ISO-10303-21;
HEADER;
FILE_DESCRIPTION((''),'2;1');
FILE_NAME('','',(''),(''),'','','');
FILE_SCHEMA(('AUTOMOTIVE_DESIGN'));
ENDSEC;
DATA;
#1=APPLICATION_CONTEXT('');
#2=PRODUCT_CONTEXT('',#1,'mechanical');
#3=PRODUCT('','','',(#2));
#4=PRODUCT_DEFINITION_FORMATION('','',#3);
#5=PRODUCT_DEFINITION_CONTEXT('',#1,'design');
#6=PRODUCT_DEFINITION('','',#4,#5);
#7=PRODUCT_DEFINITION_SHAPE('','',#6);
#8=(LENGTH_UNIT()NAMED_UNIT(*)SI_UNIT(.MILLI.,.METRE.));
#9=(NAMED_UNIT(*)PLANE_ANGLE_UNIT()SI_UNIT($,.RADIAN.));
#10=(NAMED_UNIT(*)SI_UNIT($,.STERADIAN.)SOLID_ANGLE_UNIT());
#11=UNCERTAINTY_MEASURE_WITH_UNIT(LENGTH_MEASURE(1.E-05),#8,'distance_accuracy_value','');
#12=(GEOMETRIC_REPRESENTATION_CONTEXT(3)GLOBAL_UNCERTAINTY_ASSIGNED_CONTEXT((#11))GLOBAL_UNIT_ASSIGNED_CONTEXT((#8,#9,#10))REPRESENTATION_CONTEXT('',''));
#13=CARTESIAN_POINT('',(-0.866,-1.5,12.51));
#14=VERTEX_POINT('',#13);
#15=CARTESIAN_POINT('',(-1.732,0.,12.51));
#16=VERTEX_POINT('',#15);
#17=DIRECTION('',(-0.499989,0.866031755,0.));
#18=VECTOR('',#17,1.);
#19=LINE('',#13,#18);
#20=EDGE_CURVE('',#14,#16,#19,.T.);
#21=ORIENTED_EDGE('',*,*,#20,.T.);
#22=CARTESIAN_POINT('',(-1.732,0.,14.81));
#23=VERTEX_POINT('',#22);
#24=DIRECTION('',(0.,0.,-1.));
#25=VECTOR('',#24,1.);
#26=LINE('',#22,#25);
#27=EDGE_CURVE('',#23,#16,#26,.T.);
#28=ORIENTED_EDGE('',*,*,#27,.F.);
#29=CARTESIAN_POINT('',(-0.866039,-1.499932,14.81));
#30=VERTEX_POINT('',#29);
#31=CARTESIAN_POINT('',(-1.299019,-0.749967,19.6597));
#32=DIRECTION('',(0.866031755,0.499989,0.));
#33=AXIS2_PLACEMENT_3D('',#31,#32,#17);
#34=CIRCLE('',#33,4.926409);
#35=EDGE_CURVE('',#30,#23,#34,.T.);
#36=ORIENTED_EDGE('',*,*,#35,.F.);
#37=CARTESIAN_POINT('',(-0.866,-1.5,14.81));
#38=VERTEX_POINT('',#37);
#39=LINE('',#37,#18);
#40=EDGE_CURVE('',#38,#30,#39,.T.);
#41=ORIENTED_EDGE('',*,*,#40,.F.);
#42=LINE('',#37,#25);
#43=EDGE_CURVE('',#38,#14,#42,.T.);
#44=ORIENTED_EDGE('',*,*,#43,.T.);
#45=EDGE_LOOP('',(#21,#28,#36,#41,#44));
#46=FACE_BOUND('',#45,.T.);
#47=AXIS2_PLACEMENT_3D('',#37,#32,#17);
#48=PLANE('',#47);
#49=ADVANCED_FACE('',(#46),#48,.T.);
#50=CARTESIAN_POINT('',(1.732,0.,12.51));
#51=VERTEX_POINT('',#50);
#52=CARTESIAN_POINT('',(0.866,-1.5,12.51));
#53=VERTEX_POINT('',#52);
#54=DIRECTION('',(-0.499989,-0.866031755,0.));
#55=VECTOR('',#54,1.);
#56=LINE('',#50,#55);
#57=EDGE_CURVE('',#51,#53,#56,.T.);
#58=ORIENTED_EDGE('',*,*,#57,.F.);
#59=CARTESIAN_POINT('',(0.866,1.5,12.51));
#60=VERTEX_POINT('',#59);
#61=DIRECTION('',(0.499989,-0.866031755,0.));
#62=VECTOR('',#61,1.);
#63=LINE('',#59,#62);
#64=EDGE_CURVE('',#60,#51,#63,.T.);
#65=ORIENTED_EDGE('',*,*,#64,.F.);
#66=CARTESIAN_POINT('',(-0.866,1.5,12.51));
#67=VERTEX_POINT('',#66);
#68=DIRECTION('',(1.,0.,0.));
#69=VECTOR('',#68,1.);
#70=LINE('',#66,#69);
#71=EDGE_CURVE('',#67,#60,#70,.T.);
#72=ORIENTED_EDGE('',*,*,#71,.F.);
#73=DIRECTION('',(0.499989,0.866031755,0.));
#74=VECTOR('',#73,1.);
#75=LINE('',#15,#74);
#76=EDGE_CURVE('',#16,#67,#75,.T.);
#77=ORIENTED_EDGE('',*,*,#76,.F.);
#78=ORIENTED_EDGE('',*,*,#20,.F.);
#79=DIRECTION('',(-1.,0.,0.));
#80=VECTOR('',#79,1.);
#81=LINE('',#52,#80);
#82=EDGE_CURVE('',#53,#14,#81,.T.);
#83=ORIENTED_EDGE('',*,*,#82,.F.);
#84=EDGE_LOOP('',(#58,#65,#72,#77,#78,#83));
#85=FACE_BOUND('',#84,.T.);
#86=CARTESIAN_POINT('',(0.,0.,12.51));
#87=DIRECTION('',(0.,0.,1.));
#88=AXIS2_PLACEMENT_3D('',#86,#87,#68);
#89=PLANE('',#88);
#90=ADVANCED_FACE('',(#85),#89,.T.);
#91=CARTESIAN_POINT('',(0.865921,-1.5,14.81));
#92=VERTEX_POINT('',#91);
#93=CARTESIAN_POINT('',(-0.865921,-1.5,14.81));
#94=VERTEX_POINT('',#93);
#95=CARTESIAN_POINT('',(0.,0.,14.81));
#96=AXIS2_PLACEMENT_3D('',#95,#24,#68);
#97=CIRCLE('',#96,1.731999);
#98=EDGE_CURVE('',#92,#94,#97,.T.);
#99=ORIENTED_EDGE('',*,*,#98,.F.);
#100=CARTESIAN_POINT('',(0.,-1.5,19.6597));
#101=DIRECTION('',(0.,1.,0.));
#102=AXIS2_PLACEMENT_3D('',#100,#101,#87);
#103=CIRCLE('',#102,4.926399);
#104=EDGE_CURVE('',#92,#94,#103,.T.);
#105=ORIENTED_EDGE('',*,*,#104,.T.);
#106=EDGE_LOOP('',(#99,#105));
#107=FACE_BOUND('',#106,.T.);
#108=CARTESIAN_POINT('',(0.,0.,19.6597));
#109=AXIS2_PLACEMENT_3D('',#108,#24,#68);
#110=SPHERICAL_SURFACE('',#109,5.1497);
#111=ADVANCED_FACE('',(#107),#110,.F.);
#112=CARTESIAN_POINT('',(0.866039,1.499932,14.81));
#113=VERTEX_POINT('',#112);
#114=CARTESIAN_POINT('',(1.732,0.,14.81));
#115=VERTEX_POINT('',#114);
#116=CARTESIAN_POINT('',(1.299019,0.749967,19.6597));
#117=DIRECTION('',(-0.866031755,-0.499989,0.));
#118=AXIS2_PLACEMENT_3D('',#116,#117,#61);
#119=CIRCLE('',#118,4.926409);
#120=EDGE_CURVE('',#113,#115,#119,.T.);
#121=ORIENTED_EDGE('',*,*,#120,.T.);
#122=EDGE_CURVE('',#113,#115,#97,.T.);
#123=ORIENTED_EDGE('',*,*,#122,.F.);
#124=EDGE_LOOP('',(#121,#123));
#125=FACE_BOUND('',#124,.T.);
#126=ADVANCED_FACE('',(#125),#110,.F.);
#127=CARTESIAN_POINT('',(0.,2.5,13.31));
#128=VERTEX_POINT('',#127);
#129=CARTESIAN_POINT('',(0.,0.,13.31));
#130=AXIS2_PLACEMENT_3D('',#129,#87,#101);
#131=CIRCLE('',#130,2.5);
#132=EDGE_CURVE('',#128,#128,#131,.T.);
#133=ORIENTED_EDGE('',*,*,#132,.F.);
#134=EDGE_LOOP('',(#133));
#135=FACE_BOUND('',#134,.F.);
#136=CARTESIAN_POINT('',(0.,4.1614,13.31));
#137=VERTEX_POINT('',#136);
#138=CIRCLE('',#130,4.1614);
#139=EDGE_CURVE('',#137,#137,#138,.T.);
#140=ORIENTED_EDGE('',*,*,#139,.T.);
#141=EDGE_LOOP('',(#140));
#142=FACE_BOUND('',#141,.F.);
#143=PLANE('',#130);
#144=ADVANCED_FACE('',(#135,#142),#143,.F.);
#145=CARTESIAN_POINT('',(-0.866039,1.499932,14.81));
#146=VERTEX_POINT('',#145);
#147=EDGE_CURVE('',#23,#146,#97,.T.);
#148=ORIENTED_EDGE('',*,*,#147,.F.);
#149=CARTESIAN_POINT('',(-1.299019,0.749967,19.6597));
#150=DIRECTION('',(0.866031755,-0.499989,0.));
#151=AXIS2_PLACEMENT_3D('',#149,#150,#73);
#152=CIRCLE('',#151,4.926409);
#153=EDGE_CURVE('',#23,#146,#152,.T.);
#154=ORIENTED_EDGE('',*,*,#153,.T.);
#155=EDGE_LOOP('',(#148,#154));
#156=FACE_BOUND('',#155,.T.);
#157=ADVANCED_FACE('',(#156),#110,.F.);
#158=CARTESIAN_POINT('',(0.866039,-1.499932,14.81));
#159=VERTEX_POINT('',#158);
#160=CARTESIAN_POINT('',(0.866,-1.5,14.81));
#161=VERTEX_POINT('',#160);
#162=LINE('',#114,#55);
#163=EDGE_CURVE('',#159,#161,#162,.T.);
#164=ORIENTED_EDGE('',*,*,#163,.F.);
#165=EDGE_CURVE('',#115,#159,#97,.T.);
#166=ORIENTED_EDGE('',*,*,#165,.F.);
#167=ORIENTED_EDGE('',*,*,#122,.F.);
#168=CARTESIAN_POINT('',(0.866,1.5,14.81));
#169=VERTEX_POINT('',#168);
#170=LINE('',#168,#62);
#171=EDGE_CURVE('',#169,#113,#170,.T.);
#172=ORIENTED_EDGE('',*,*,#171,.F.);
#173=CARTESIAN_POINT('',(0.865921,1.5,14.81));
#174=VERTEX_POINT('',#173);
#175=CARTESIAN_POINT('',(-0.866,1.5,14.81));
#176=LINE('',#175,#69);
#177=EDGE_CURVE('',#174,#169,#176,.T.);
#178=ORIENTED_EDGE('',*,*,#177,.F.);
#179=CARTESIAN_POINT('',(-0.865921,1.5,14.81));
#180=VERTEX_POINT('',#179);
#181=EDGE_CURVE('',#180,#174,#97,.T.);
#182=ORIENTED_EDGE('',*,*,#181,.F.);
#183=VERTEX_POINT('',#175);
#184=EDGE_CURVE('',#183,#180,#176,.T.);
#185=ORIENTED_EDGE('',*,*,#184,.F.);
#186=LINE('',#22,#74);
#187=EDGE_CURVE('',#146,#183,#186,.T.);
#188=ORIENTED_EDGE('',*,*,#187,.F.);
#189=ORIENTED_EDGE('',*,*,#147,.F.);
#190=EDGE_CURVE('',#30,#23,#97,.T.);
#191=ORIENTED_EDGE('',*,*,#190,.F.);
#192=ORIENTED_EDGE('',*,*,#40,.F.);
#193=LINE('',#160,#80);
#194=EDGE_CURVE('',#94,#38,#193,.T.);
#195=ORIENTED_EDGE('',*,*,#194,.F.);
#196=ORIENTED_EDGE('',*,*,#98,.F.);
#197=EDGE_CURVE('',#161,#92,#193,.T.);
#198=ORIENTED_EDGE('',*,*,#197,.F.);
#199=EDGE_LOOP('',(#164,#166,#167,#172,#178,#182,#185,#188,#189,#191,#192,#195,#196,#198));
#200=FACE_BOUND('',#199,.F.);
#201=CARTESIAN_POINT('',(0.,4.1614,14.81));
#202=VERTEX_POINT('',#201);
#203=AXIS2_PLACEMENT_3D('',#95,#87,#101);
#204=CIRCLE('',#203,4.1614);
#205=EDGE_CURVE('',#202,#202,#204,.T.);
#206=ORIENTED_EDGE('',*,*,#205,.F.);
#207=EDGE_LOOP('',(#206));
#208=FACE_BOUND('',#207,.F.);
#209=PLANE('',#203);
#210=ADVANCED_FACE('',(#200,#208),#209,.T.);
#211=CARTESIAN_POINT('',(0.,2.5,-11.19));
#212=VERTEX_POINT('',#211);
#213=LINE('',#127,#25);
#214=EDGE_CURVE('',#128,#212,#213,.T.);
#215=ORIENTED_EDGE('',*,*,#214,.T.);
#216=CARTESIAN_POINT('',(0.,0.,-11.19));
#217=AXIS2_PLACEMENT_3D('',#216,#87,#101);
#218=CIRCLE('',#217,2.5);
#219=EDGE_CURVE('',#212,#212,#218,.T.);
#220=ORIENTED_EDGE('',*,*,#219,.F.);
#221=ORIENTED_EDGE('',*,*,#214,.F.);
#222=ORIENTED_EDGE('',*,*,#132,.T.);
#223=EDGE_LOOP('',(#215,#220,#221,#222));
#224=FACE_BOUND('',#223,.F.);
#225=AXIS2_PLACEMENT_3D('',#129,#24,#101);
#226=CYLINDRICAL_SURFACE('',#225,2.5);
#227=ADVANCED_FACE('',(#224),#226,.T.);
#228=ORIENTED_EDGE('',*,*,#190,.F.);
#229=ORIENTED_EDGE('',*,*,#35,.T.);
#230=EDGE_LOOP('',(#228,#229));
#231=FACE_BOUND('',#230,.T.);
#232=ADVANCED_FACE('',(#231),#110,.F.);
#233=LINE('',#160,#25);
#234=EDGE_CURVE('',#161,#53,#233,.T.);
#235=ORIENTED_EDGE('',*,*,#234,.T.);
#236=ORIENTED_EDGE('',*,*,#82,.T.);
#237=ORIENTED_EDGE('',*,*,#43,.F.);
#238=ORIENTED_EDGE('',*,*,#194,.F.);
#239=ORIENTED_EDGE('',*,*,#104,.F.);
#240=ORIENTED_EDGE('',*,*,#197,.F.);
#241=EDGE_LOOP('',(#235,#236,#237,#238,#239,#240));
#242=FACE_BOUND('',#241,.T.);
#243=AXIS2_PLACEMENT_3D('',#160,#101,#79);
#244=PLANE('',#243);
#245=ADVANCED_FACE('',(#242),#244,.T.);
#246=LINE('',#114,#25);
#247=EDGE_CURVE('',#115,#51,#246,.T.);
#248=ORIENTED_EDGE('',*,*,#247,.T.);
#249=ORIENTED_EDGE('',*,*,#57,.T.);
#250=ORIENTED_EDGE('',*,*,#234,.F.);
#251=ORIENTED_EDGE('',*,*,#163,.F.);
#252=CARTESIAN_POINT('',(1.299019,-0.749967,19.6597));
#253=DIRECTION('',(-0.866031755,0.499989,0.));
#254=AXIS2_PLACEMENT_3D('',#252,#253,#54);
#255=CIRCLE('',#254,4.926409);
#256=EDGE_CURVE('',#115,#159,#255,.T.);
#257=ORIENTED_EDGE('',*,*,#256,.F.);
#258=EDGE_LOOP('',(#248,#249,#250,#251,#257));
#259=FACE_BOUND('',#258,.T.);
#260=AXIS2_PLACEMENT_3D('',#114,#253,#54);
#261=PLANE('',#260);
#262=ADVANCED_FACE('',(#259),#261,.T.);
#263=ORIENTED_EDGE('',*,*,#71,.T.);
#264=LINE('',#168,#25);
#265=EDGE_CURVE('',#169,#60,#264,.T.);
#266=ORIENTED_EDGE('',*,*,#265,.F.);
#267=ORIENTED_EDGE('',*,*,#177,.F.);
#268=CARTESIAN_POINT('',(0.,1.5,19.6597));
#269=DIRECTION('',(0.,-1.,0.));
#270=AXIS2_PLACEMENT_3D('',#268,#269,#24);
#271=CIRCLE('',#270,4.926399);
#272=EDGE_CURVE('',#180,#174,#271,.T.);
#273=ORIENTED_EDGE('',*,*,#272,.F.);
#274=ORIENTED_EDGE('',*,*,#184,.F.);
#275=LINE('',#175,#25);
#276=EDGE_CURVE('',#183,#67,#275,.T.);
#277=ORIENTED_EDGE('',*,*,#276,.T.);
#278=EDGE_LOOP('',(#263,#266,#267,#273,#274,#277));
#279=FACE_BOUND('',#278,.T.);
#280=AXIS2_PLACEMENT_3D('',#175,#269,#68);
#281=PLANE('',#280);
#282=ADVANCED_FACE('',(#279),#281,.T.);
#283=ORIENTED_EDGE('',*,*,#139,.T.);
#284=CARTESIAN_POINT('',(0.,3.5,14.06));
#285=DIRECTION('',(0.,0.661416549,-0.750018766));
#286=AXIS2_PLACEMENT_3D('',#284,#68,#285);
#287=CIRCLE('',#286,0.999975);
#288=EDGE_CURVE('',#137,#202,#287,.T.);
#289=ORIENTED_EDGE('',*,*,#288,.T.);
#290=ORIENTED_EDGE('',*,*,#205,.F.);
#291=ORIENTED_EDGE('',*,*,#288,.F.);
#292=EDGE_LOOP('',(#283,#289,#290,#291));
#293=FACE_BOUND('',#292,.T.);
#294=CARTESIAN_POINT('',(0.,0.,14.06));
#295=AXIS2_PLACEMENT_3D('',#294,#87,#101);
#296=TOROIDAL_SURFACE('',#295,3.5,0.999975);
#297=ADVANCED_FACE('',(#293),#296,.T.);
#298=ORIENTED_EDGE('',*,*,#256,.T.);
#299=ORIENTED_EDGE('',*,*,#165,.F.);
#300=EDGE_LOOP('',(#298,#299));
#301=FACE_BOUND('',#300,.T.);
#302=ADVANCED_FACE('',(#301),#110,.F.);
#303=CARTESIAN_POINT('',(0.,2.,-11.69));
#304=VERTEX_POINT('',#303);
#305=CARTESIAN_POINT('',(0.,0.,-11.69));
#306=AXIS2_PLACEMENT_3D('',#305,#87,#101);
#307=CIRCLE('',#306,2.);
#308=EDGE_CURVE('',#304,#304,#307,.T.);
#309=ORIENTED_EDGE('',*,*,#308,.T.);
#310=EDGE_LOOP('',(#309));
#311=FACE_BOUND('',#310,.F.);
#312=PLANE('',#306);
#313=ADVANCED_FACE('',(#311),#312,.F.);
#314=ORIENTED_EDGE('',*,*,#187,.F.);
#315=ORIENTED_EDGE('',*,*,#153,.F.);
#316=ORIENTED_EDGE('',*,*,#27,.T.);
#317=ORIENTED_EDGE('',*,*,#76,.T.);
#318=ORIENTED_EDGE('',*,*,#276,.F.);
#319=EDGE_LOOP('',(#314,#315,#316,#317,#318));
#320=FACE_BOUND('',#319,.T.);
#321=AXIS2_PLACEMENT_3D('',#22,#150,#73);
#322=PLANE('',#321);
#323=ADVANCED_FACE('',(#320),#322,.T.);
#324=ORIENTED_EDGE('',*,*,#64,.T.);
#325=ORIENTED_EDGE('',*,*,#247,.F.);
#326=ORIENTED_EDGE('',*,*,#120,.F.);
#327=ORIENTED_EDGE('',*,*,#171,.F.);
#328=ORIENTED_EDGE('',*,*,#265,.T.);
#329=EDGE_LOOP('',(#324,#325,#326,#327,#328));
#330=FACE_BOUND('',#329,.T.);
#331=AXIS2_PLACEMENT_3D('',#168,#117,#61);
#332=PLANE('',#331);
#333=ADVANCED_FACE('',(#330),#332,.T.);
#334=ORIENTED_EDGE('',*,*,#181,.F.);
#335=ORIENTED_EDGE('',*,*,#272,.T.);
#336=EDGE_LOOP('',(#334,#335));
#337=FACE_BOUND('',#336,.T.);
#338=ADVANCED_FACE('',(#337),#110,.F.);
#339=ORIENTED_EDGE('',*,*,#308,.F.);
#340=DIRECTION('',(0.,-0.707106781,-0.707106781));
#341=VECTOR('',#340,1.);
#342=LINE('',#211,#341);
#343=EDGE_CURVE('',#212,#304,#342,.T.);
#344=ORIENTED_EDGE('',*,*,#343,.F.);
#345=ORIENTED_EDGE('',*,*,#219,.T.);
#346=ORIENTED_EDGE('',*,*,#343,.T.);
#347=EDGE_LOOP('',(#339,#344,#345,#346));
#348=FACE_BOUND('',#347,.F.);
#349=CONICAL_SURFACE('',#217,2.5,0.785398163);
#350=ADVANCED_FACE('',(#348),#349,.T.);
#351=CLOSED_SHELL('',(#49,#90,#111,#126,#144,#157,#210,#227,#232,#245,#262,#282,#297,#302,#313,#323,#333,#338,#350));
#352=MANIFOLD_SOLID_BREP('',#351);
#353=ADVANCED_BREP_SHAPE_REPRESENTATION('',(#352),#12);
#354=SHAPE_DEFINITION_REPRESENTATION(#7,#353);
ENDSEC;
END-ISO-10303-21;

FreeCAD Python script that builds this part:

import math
import FreeCAD as App
import Part
import Sketcher
Q = App.Units.Quantity

doc = App.newDocument("Part")
params = doc.addObject("Spreadsheet::Sheet", "Params")
for row, (alias, value) in enumerate([
    ("sketch1_radius", "1 mm"),
    ("sketch1_width", "2 mm"),
    ("sketch1_height", "24.5 mm"),
    ("sketch1_height2", "26.5 mm"),
    ("revolution_angle", "360 deg"),
    ("pocket1_length", "2.3 mm"),
    ("groove_angle", "360 deg"),
], start=1):
    params.set(f"A{row}", alias)
    params.set(f"B{row}", "=" + value)
    params.setAlias(f"B{row}", alias)

body = doc.addObject("PartDesign::Body", "Body")

sketch1 = body.newObject("Sketcher::SketchObject", "Sketch")
sketch1.AttachmentSupport = (doc.getObject("YZ_Plane"), [""])
sketch1.MapMode = "FlatFace"
sketch1.addGeometry([
    Part.LineSegment(App.Vector(2.5, -11.2, 0), App.Vector(2.5, 13.3, 0)),
    Part.LineSegment(App.Vector(2.5, 13.3, 0), App.Vector(4.2, 13.3, 0)),
    Part.ArcOfCircle(Part.Circle(App.Vector(3.5, 14.1, 0), App.Vector(0, 0, 1), 1), math.radians(-49), math.radians(49)),
    Part.LineSegment(App.Vector(4.2, 14.8, 0), App.Vector(0, 14.8, 0)),
    Part.LineSegment(App.Vector(0, 14.8, 0), App.Vector(0, -11.7, 0)),
    Part.LineSegment(App.Vector(0, -11.7, 0), App.Vector(2, -11.7, 0)),
    Part.LineSegment(App.Vector(2, -11.7, 0), App.Vector(2.5, -11.2, 0)),
], False)
sketch1.addConstraint([
    Sketcher.Constraint("Coincident", 0, 2, 1, 1),
    Sketcher.Constraint("Coincident", 1, 2, 2, 1),
    Sketcher.Constraint("Coincident", 2, 2, 3, 1),
    Sketcher.Constraint("Coincident", 3, 2, 4, 1),
    Sketcher.Constraint("Coincident", 4, 2, 5, 1),
    Sketcher.Constraint("Coincident", 5, 2, 6, 1),
    Sketcher.Constraint("Coincident", 6, 2, 0, 1),
    Sketcher.Constraint("Vertical", 0),
    Sketcher.Constraint("Horizontal", 1),
    Sketcher.Constraint("Horizontal", 3),
    Sketcher.Constraint("Vertical", 4),
    Sketcher.Constraint("Horizontal", 5),
    Sketcher.Constraint("PointOnObject", 3, 2, -2),
    Sketcher.Constraint("Vertical", 1, 2, 2, 2),
    Sketcher.Constraint("Radius", 2, 1.0),
    Sketcher.Constraint("DistanceX", 5, 1, 5, 2, 2.0),
    Sketcher.Constraint("Angle", 6, Q("45 deg")),
    Sketcher.Constraint("DistanceY", 0, 1, 0, 2, 24.5),
    Sketcher.Constraint("DistanceY", 4, 2, 4, 1, 26.5),
    Sketcher.Constraint("DistanceX", 0, 2, 2, 3, 1.0),
    Sketcher.Constraint("DistanceY", 4, 2, 0, 2, 25.0),
    Sketcher.Constraint("DistanceY", -1, 1, 2, 3, 14.06),
])
sketch1.setExpression("Constraints[14]", "Params.sketch1_radius")
sketch1.setExpression("Constraints[15]", "Params.sketch1_width")
sketch1.setExpression("Constraints[17]", "Params.sketch1_height")
sketch1.setExpression("Constraints[18]", "Params.sketch1_height2")
revolution = body.newObject("PartDesign::Revolution", "Revolution")
revolution.Profile = sketch1
revolution.ReferenceAxis = (sketch1, ["V_Axis"])
revolution.setExpression("Angle", "Params.revolution_angle")

sketch2 = body.newObject("Sketcher::SketchObject", "Sketch001")
sketch2.AttachmentSupport = (doc.getObject("XY_Plane"), [""])
sketch2.MapMode = "FlatFace"
sketch2.AttachmentOffset = App.Placement(App.Vector(0, 0, 14.81), App.Rotation())
sketch2.addGeometry([
    Part.LineSegment(App.Vector(0.9, -1.5, 0), App.Vector(1.7, 0, 0)),
    Part.LineSegment(App.Vector(1.7, 0, 0), App.Vector(0.9, 1.5, 0)),
    Part.LineSegment(App.Vector(0.9, 1.5, 0), App.Vector(-0.9, 1.5, 0)),
    Part.LineSegment(App.Vector(-0.9, 1.5, 0), App.Vector(-1.7, 0, 0)),
    Part.LineSegment(App.Vector(-1.7, 0, 0), App.Vector(-0.9, -1.5, 0)),
    Part.LineSegment(App.Vector(-0.9, -1.5, 0), App.Vector(0.9, -1.5, 0)),
], False)
sketch2.addConstraint([
    Sketcher.Constraint("Coincident", 0, 2, 1, 1),
    Sketcher.Constraint("Coincident", 1, 2, 2, 1),
    Sketcher.Constraint("Coincident", 2, 2, 3, 1),
    Sketcher.Constraint("Coincident", 3, 2, 4, 1),
    Sketcher.Constraint("Coincident", 4, 2, 5, 1),
    Sketcher.Constraint("Coincident", 5, 2, 0, 1),
    Sketcher.Constraint("Horizontal", 2),
    Sketcher.Constraint("Horizontal", 5),
    Sketcher.Constraint("Symmetric", 0, 2, 3, 2, -1, 1),
    Sketcher.Constraint("Symmetric", 1, 2, 4, 2, -1, 1),
    Sketcher.Constraint("PointOnObject", 0, 2, -1),
    Sketcher.Constraint("Parallel", 0, 3),
    Sketcher.Constraint("Vertical", 2, 2, 4, 2),
    Sketcher.Constraint("Angle", 0, Q("60.0007 deg")),
    Sketcher.Constraint("DistanceX", 3, 2, 0, 2, 3.464),
    Sketcher.Constraint("DistanceY", 4, 2, 2, 2, 3.0),
])
pocket1 = body.newObject("PartDesign::Pocket", "Pocket")
pocket1.Profile = sketch2
pocket1.setExpression("Length", "Params.pocket1_length")

sketch3 = body.newObject("Sketcher::SketchObject", "Sketch002")
sketch3.AttachmentSupport = (doc.getObject("XZ_Plane"), [""])
sketch3.MapMode = "FlatFace"
sketch3.addGeometry([
    Part.LineSegment(App.Vector(0, 15, 0), App.Vector(0, 25, 0)),
    Part.ArcOfCircle(Part.Circle(App.Vector(0, 20, 0), App.Vector(0, 0, 1), 5), math.radians(-90), math.radians(90)),
], False)
sketch3.addConstraint([
    Sketcher.Constraint("Coincident", 0, 1, 1, 1),
    Sketcher.Constraint("Coincident", 1, 2, 0, 2),
    Sketcher.Constraint("Vertical", 0),
    Sketcher.Constraint("PointOnObject", 1, 3, -2),
    Sketcher.Constraint("PointOnObject", 0, 1, -2),
    Sketcher.Constraint("Radius", 1, 5.1497),
    Sketcher.Constraint("DistanceY", -1, 1, 0, 1, 14.51),
])
groove = body.newObject("PartDesign::Groove", "Groove")
groove.Profile = sketch3
groove.ReferenceAxis = (sketch3, ["V_Axis"])
groove.setExpression("Angle", "Params.groove_angle")

doc.recompute()
